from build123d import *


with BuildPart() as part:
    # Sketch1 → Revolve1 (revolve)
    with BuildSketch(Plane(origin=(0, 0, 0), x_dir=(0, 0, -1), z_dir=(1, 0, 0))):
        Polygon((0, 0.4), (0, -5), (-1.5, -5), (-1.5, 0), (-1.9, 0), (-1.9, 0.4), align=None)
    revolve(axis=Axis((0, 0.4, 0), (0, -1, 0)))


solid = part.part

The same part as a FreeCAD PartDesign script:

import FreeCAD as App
import Part
import Sketcher
Q = App.Units.Quantity

doc = App.newDocument("Part")
body = doc.addObject("PartDesign::Body", "Body")

# Sketch on YZ plane
sketch1 = body.newObject("Sketcher::SketchObject", "Sketch")
sketch1.AttachmentSupport = (doc.getObject("YZ_Plane"), [""])
sketch1.MapMode = "FlatFace"
sketch1.addGeometry([
    Part.LineSegment(App.Vector(-5, 0, 0), App.Vector(0.4, 0, 0)),  # 0
    Part.LineSegment(App.Vector(0.4, 0, 0), App.Vector(0.4, 1.9, 0)),  # 1
    Part.LineSegment(App.Vector(0.4, 1.9, 0), App.Vector(0, 1.9, 0)),  # 2
    Part.LineSegment(App.Vector(0, 1.9, 0), App.Vector(0, 1.5, 0)),  # 3
    Part.LineSegment(App.Vector(0, 1.5, 0), App.Vector(-5, 1.5, 0)),  # 4
    Part.LineSegment(App.Vector(-5, 1.5, 0), App.Vector(-5, 0, 0)),  # 5
], False)
sketch1.addConstraint([
    Sketcher.Constraint("Coincident", 0, 2, 1, 1),
    Sketcher.Constraint("Coincident", 1, 2, 2, 1),
    Sketcher.Constraint("Coincident", 2, 2, 3, 1),
    Sketcher.Constraint("Coincident", 3, 2, 4, 1),
    Sketcher.Constraint("Coincident", 4, 2, 5, 1),
    Sketcher.Constraint("Coincident", 5, 2, 0, 1),
    Sketcher.Constraint("Horizontal", 0),
    Sketcher.Constraint("Vertical", 1),
    Sketcher.Constraint("Horizontal", 2),
    Sketcher.Constraint("Vertical", 3),
    Sketcher.Constraint("Horizontal", 4),
    Sketcher.Constraint("Vertical", 5),
    Sketcher.Constraint("PointOnObject", 0, 2, -1),
    Sketcher.Constraint("PointOnObject", 2, 2, -2),
    Sketcher.Constraint("Equal", 2, 3),
    Sketcher.Constraint("DistanceX", 4, 2, 4, 1, Q("5 mm")),
    Sketcher.Constraint("DistanceX", 0, 1, 0, 2, Q("5.4 mm")),
    Sketcher.Constraint("DistanceY", 1, 1, 1, 2, Q("1.9 mm")),
])
revolution = body.newObject("PartDesign::Revolution", "Revolution")
revolution.Profile = sketch1
revolution.ReferenceAxis = (sketch1, ["H_Axis"])
revolution.Angle = 360

doc.recompute()
